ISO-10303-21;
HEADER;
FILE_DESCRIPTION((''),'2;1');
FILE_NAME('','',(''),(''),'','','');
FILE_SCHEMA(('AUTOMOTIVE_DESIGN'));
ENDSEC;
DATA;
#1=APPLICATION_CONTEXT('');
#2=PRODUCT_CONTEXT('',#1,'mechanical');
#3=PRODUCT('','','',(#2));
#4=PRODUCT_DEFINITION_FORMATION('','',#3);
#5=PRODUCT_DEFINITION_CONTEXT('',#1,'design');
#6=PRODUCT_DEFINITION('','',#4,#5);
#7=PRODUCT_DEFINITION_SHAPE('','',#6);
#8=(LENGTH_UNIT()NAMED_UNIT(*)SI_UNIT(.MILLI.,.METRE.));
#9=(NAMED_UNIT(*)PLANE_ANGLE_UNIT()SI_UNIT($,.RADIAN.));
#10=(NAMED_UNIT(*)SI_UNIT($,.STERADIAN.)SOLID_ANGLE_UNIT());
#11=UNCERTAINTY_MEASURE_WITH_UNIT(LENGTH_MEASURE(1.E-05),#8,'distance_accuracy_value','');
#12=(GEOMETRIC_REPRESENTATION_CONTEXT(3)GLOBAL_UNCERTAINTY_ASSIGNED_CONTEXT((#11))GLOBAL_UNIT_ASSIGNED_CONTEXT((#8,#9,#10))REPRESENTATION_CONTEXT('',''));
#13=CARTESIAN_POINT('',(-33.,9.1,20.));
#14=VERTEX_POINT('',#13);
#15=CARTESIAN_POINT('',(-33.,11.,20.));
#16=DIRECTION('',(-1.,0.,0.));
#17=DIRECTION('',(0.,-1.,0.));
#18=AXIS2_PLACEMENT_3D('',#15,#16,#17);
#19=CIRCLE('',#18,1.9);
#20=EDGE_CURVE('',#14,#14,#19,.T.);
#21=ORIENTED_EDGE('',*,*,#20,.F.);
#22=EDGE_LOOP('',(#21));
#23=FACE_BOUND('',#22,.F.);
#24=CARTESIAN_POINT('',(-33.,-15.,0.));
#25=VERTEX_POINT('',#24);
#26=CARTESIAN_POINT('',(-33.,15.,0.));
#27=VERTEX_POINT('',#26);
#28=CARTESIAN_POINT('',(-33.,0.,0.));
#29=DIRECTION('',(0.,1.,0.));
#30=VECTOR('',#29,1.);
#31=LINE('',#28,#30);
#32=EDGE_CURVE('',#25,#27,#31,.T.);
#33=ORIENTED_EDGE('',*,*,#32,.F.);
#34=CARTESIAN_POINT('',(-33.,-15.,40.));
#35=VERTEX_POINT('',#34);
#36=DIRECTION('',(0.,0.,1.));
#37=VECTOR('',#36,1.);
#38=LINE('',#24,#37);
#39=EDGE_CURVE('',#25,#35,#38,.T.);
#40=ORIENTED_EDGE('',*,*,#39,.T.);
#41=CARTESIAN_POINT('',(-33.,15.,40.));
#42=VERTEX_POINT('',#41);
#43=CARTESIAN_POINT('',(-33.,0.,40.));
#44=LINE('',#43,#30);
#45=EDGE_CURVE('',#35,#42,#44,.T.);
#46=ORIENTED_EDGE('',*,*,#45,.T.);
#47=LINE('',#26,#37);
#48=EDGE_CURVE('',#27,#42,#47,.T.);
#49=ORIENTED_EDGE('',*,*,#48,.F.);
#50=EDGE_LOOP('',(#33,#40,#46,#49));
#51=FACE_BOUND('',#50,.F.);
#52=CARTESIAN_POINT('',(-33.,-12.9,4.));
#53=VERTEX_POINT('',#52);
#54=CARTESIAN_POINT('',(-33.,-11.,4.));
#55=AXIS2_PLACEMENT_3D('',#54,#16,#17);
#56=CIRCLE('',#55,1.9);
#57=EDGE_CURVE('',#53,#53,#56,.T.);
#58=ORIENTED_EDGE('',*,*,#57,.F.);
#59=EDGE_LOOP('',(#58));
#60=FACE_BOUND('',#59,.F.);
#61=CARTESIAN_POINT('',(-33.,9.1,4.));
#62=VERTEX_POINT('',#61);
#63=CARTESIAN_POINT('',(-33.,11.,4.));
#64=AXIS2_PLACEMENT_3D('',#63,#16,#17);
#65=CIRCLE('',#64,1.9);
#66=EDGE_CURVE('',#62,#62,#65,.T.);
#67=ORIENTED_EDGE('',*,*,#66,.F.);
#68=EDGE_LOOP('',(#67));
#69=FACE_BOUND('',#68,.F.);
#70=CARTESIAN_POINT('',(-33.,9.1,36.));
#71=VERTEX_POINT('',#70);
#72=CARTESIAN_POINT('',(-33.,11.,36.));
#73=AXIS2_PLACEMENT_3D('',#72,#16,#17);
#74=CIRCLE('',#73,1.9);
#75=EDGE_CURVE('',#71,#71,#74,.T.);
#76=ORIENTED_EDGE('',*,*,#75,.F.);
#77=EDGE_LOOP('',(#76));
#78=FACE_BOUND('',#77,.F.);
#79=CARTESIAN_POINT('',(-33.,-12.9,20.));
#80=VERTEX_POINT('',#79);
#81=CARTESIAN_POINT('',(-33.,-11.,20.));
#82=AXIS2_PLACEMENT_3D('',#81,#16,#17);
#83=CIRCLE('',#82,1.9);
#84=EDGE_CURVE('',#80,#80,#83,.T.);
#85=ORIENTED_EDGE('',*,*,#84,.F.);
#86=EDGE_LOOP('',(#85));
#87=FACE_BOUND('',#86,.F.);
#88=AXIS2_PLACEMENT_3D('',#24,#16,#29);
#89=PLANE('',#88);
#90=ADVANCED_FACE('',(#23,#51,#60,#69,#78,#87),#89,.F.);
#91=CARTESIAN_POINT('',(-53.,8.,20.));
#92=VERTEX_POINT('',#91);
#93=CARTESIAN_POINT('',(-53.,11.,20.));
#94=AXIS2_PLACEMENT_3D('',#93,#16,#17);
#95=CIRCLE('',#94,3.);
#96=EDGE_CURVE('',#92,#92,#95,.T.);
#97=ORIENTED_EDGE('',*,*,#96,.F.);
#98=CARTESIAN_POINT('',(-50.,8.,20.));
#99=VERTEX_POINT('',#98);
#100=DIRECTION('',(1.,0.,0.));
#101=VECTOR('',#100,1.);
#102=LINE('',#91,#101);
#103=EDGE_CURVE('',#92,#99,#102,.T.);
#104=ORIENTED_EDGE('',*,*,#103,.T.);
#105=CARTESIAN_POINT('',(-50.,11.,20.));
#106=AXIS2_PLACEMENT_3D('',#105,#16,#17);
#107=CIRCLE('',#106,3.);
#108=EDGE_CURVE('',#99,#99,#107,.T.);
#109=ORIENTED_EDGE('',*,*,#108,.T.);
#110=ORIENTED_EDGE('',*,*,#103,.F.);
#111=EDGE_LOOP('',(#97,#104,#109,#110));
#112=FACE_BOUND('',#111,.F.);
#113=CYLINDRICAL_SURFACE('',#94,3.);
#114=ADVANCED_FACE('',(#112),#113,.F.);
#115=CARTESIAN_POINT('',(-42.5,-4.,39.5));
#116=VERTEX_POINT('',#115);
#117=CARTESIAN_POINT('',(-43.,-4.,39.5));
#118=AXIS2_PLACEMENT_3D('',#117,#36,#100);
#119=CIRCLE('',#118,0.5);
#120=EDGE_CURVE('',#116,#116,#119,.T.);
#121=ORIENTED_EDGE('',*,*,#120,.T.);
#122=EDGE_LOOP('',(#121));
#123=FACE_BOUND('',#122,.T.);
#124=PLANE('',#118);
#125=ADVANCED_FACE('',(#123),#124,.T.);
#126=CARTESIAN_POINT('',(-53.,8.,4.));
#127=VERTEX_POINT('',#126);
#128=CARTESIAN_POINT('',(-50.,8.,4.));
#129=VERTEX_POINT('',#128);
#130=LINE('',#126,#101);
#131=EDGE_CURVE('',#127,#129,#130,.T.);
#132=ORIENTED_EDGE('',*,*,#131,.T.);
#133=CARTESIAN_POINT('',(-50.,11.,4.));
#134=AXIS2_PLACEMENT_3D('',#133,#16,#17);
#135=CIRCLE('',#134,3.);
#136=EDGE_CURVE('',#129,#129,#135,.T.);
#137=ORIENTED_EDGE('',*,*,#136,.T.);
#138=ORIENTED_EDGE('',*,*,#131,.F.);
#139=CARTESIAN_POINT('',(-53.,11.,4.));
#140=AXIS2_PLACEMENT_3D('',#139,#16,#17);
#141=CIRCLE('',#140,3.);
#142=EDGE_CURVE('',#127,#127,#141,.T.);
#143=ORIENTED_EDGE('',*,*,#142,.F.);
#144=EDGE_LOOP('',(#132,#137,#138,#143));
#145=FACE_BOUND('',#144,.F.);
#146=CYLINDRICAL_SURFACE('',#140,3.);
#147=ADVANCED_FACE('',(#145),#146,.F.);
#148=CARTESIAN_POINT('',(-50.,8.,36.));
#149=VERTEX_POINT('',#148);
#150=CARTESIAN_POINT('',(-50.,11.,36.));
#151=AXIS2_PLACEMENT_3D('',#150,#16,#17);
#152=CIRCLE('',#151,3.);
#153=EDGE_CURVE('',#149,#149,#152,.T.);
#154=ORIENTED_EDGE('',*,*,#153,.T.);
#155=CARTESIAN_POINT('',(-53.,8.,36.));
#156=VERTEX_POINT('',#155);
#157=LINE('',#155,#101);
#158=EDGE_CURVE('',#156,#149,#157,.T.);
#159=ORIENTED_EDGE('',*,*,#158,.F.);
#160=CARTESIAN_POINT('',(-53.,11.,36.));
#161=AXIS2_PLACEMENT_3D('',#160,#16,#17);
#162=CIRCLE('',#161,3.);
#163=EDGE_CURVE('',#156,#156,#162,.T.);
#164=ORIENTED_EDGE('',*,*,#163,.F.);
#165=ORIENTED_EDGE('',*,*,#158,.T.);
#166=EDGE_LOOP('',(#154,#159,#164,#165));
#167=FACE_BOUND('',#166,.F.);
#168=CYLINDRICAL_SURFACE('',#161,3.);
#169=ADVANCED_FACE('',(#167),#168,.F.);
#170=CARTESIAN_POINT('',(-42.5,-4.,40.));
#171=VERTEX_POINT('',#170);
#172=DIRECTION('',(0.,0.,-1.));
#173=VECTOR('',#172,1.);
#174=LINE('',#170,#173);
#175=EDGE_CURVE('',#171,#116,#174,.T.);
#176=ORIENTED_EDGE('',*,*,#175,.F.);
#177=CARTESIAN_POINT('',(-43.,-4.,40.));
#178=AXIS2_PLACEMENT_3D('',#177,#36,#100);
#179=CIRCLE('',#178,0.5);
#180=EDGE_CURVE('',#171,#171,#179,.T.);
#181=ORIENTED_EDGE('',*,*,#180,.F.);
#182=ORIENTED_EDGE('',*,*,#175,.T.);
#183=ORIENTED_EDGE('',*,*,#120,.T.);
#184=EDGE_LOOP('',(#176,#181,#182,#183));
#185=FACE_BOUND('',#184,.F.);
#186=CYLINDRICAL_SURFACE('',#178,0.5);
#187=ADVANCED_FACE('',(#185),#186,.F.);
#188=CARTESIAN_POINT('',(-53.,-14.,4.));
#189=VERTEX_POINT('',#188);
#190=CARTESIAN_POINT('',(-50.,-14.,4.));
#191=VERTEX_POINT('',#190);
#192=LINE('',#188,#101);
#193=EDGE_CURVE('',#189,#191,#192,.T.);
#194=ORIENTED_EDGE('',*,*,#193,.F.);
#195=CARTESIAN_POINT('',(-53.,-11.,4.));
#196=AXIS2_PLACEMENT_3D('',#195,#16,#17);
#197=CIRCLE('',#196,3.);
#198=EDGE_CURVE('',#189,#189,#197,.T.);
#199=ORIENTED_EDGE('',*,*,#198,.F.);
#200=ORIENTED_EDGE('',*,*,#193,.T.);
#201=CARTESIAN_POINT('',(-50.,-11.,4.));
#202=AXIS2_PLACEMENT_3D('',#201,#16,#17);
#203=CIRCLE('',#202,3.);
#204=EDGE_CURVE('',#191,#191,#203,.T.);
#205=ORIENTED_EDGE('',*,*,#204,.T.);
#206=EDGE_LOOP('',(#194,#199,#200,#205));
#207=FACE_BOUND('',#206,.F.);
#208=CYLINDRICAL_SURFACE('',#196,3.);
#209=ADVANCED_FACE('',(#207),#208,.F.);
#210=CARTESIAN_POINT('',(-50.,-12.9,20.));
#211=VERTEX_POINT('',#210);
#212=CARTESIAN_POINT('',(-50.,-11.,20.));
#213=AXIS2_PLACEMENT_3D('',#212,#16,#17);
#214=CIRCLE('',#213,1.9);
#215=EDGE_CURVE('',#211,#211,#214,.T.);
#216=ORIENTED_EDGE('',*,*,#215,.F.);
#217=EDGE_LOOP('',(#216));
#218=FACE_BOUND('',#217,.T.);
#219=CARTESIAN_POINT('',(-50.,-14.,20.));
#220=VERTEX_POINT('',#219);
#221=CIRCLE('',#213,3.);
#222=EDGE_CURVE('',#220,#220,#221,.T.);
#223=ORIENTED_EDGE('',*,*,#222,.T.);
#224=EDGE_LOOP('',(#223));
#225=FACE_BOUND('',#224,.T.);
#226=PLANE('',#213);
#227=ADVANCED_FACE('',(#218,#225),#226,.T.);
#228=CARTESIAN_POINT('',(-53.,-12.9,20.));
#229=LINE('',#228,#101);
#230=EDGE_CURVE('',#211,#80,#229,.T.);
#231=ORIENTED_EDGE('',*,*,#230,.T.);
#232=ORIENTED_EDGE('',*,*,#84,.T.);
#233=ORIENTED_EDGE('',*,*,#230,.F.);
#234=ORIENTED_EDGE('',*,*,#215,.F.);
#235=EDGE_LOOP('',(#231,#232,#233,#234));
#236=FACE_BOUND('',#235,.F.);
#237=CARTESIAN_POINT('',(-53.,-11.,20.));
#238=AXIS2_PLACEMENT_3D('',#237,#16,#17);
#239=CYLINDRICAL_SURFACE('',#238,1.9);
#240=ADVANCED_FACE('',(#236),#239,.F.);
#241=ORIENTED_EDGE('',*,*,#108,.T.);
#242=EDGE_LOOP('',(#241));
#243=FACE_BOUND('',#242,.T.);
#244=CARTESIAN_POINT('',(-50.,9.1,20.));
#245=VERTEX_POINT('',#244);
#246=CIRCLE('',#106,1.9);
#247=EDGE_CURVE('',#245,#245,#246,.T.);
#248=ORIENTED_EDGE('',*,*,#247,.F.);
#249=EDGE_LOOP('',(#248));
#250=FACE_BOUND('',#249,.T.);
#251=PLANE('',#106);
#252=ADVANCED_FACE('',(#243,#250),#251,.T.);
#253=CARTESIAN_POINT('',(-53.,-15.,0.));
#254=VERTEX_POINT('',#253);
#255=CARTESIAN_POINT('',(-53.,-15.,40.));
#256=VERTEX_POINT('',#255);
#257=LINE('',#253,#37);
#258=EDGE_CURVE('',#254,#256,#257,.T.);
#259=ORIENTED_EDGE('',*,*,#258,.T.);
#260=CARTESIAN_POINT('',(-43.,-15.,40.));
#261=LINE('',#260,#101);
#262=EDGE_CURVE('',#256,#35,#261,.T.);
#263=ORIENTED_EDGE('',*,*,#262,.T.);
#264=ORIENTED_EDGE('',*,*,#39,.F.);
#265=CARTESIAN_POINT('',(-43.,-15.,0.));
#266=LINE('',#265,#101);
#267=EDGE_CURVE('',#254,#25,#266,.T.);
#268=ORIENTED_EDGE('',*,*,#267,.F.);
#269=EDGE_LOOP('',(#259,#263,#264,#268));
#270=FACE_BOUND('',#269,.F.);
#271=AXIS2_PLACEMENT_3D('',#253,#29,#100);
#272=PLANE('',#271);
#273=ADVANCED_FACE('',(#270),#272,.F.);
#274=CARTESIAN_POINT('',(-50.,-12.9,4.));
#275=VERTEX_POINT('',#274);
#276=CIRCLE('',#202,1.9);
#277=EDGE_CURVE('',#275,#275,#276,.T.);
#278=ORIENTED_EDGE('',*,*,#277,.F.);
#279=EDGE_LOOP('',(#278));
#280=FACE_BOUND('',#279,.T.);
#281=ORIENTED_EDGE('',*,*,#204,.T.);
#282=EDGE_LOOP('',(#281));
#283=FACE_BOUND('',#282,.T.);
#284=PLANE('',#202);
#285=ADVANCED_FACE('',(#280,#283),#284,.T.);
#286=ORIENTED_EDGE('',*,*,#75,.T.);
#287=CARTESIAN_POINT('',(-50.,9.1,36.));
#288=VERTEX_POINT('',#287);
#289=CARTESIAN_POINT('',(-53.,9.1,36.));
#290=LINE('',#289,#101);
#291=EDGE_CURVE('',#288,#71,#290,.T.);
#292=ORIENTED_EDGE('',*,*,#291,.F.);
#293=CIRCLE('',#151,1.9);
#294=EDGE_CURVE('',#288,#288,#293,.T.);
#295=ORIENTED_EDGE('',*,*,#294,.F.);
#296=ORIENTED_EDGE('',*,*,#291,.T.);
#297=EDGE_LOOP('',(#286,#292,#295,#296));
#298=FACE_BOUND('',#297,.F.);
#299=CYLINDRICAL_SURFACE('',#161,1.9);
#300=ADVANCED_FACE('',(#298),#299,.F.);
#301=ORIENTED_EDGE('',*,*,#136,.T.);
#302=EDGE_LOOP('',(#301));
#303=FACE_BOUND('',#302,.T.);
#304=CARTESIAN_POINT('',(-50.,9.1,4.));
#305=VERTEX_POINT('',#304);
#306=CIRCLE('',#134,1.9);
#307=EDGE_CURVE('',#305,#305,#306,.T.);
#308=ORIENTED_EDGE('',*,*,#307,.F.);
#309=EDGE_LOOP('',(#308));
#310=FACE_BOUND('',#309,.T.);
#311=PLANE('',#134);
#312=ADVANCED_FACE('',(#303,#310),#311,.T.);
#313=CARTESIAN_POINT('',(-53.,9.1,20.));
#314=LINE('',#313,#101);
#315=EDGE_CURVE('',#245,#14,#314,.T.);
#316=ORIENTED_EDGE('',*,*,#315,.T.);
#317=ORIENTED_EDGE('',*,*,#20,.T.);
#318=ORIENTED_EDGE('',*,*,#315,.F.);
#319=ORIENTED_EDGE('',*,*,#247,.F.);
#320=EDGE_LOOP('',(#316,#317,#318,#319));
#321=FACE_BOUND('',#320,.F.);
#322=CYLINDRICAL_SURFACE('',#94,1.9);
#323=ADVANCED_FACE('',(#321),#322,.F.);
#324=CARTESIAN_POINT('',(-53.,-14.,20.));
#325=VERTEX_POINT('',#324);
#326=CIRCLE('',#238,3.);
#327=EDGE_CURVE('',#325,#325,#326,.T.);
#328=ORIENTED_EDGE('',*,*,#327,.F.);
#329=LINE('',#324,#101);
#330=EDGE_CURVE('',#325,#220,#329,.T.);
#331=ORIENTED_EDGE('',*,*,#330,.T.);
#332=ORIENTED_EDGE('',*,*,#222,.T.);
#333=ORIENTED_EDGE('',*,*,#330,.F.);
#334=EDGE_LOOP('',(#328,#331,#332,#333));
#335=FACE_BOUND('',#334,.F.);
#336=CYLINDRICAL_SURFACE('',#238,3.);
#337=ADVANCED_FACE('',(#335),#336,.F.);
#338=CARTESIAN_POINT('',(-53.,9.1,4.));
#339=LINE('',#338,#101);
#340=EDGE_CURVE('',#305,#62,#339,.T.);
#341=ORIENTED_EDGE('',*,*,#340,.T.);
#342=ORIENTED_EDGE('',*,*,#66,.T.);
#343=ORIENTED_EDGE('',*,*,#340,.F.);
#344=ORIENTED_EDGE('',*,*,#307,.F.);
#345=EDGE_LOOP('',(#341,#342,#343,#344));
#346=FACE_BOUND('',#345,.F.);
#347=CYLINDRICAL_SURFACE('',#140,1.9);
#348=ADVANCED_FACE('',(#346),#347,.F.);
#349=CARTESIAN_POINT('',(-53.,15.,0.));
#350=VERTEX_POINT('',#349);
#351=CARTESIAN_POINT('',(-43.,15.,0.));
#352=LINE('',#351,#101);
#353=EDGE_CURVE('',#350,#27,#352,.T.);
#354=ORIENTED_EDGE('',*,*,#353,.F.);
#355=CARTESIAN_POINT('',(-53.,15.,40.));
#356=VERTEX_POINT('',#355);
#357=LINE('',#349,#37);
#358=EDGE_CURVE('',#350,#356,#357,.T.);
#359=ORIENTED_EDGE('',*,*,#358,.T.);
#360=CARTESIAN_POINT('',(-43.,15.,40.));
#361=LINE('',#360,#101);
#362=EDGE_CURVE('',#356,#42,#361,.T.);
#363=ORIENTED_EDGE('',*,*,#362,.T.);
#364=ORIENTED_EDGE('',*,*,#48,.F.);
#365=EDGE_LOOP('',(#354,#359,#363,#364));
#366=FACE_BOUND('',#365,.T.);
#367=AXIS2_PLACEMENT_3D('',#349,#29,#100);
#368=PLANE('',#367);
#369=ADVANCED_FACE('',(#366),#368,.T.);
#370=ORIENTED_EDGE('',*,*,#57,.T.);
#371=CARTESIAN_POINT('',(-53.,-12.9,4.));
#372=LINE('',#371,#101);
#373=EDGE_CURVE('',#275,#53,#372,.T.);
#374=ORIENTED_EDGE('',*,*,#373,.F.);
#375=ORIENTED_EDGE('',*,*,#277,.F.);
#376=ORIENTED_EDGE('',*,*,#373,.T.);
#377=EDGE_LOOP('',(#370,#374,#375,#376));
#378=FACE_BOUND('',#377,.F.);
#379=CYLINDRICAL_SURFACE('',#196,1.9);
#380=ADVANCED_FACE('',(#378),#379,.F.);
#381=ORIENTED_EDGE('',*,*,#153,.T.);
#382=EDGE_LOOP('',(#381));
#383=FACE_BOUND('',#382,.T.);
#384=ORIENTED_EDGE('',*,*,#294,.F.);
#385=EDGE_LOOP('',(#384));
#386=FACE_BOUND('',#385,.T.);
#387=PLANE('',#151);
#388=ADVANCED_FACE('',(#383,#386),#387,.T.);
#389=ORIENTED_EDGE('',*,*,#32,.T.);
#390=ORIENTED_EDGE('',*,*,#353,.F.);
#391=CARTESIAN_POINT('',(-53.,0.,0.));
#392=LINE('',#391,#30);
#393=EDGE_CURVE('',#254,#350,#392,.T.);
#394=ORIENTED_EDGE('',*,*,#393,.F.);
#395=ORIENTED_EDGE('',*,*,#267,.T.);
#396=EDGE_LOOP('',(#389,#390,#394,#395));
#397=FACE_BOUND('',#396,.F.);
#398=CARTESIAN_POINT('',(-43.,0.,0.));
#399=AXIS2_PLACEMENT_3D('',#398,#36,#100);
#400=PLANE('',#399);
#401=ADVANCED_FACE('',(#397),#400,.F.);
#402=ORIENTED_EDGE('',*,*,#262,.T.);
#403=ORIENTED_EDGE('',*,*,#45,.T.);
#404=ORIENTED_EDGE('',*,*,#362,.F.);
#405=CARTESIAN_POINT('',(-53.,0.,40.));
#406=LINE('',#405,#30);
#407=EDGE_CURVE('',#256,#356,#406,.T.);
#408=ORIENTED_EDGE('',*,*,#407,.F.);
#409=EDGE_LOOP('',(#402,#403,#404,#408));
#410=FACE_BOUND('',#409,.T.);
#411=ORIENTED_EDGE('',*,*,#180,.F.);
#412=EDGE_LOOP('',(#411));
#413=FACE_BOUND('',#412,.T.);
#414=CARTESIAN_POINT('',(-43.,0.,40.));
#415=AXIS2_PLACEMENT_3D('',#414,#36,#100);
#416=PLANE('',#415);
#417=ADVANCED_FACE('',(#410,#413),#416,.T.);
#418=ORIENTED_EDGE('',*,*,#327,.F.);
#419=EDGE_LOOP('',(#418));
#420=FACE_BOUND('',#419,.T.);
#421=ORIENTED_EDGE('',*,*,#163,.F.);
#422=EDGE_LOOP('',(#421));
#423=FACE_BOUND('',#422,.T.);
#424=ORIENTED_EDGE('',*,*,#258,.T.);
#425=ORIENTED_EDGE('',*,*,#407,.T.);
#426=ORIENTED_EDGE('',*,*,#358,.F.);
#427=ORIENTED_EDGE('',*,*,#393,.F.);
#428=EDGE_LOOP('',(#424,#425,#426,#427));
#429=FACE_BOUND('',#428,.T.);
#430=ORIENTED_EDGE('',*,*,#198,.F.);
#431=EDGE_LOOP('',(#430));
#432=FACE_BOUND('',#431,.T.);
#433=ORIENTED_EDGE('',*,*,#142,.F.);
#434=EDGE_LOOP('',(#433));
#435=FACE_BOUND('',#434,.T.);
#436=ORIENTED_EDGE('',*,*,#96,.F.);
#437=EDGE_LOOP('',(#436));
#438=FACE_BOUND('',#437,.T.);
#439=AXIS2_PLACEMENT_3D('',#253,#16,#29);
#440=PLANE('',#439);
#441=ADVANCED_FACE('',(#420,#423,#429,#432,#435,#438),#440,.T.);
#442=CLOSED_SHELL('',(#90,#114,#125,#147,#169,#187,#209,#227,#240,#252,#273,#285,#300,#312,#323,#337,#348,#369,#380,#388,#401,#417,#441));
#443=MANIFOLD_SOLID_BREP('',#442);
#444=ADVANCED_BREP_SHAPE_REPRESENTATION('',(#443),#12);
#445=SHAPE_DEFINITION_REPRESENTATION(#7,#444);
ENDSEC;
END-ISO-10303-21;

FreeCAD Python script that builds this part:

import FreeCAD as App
import Part
import Sketcher

V = App.Vector

doc = App.newDocument("Part")
body = doc.addObject("PartDesign::Body", "Body")

sketch1 = body.newObject("Sketcher::SketchObject", "Sketch")
sketch1.AttachmentSupport = (doc.getObject("XY_Plane"), [""])
sketch1.MapMode = "FlatFace"
sketch1.addGeometry([
    Part.LineSegment(V(-53, 15, 0), V(-53, -15, 0)),
    Part.LineSegment(V(-53, -15, 0), V(-33, -15, 0)),
    Part.LineSegment(V(-33, -15, 0), V(-33, 15, 0)),
    Part.LineSegment(V(-33, 15, 0), V(-53, 15, 0)),
], False)
sketch1.addConstraint([
    Sketcher.Constraint("Coincident", 0, 2, 1, 1),
    Sketcher.Constraint("Coincident", 1, 2, 2, 1),
    Sketcher.Constraint("Coincident", 2, 2, 3, 1),
    Sketcher.Constraint("Coincident", 3, 2, 0, 1),
    Sketcher.Constraint("Vertical", 0),
    Sketcher.Constraint("Horizontal", 1),
    Sketcher.Constraint("Vertical", 2),
    Sketcher.Constraint("Horizontal", 3),
    Sketcher.Constraint("DistanceX", 1, 1, 1, 2, 20.0),
    Sketcher.Constraint("DistanceY", 0, 2, 0, 1, 30.0),
    Sketcher.Constraint("DistanceX", 0, 2, -1, 1, 53.0),
    Sketcher.Constraint("DistanceY", 0, 2, -1, 1, 15.0),
])
pad1 = body.newObject("PartDesign::Pad", "Pad")
pad1.Profile = sketch1
pad1.Length = 40

sketch2 = body.newObject("Sketcher::SketchObject", "Sketch001")
sketch2.AttachmentSupport = (doc.getObject("YZ_Plane"), [""])
sketch2.MapMode = "FlatFace"
sketch2.AttachmentOffset = App.Placement(V(0, 0, -53), App.Rotation())
sketch2.addGeometry([
    Part.Circle(V(11, 36, 0), V(0, 0, 1), 1.9),
    Part.Circle(V(-11, 20, 0), V(0, 0, 1), 1.9),
    Part.Circle(V(11, 20, 0), V(0, 0, 1), 1.9),
    Part.Circle(V(11, 4, 0), V(0, 0, 1), 1.9),
    Part.Circle(V(-11, 4, 0), V(0, 0, 1), 1.9),
], False)
sketch2.addConstraint([
    Sketcher.Constraint("Equal", 0, 1),
    Sketcher.Constraint("Equal", 1, 2),
    Sketcher.Constraint("Equal", 2, 3),
    Sketcher.Constraint("Equal", 3, 4),
    Sketcher.Constraint("Symmetric", 1, 3, 2, 3, -2),
    Sketcher.Constraint("Symmetric", 3, 3, 4, 3, -2),
    Sketcher.Constraint("Vertical", 0, 3, 2, 3),
    Sketcher.Constraint("Vertical", 2, 3, 3, 3),
    Sketcher.Constraint("Diameter", 0, 3.8),
    Sketcher.Constraint("DistanceX", -1, 1, 0, 3, 11.0),
    Sketcher.Constraint("DistanceY", -1, 1, 0, 3, 36.0),
    Sketcher.Constraint("DistanceY", -1, 1, 1, 3, 20.0),
    Sketcher.Constraint("DistanceY", -1, 1, 3, 3, 4.0),
])
pocket1 = body.newObject("PartDesign::Pocket", "Pocket")
pocket1.Profile = sketch2
pocket1.Type = "ThroughAll"
pocket1.Reversed = True

sketch3 = body.newObject("Sketcher::SketchObject", "Sketch002")
sketch3.AttachmentSupport = (doc.getObject("YZ_Plane"), [""])
sketch3.MapMode = "FlatFace"
sketch3.AttachmentOffset = App.Placement(V(0, 0, -53), App.Rotation())
sketch3.addGeometry([
    Part.Circle(V(11, 36, 0), V(0, 0, 1), 3),
    Part.Circle(V(11, 20, 0), V(0, 0, 1), 3),
    Part.Circle(V(11, 4, 0), V(0, 0, 1), 3),
    Part.Circle(V(-11, 4, 0), V(0, 0, 1), 3),
    Part.Circle(V(-11, 20, 0), V(0, 0, 1), 3),
], False)
sketch3.addConstraint([
    Sketcher.Constraint("Equal", 0, 1),
    Sketcher.Constraint("Equal", 1, 2),
    Sketcher.Constraint("Equal", 2, 3),
    Sketcher.Constraint("Equal", 3, 4),
    Sketcher.Constraint("Symmetric", 2, 3, 3, 3, -2),
    Sketcher.Constraint("Symmetric", 1, 3, 4, 3, -2),
    Sketcher.Constraint("Vertical", 0, 3, 1, 3),
    Sketcher.Constraint("Vertical", 1, 3, 2, 3),
    Sketcher.Constraint("Diameter", 0, 6.0),
    Sketcher.Constraint("DistanceX", -1, 1, 0, 3, 11.0),
    Sketcher.Constraint("DistanceY", -1, 1, 0, 3, 36.0),
    Sketcher.Constraint("DistanceY", -1, 1, 1, 3, 20.0),
    Sketcher.Constraint("DistanceY", -1, 1, 2, 3, 4.0),
])
pocket2 = body.newObject("PartDesign::Pocket", "Pocket001")
pocket2.Profile = sketch3
pocket2.Length = 3
pocket2.Reversed = True

sketch4 = body.newObject("Sketcher::SketchObject", "Sketch003")
sketch4.AttachmentSupport = (doc.getObject("XY_Plane"), [""])
sketch4.MapMode = "FlatFace"
sketch4.AttachmentOffset = App.Placement(V(0, 0, 40), App.Rotation())
sketch4.addGeometry(Part.Circle(V(-43, -4, 0), V(0, 0, 1), 0.5), False)
sketch4.addConstraint([
    Sketcher.Constraint("Diameter", 0, 1.0),
    Sketcher.Constraint("DistanceX", 0, 3, -1, 1, 43.0),
    Sketcher.Constraint("DistanceY", 0, 3, -1, 1, 4.0),
])
pocket3 = body.newObject("PartDesign::Pocket", "Pocket002")
pocket3.Profile = sketch4
pocket3.Length = 0.5

doc.recompute()
